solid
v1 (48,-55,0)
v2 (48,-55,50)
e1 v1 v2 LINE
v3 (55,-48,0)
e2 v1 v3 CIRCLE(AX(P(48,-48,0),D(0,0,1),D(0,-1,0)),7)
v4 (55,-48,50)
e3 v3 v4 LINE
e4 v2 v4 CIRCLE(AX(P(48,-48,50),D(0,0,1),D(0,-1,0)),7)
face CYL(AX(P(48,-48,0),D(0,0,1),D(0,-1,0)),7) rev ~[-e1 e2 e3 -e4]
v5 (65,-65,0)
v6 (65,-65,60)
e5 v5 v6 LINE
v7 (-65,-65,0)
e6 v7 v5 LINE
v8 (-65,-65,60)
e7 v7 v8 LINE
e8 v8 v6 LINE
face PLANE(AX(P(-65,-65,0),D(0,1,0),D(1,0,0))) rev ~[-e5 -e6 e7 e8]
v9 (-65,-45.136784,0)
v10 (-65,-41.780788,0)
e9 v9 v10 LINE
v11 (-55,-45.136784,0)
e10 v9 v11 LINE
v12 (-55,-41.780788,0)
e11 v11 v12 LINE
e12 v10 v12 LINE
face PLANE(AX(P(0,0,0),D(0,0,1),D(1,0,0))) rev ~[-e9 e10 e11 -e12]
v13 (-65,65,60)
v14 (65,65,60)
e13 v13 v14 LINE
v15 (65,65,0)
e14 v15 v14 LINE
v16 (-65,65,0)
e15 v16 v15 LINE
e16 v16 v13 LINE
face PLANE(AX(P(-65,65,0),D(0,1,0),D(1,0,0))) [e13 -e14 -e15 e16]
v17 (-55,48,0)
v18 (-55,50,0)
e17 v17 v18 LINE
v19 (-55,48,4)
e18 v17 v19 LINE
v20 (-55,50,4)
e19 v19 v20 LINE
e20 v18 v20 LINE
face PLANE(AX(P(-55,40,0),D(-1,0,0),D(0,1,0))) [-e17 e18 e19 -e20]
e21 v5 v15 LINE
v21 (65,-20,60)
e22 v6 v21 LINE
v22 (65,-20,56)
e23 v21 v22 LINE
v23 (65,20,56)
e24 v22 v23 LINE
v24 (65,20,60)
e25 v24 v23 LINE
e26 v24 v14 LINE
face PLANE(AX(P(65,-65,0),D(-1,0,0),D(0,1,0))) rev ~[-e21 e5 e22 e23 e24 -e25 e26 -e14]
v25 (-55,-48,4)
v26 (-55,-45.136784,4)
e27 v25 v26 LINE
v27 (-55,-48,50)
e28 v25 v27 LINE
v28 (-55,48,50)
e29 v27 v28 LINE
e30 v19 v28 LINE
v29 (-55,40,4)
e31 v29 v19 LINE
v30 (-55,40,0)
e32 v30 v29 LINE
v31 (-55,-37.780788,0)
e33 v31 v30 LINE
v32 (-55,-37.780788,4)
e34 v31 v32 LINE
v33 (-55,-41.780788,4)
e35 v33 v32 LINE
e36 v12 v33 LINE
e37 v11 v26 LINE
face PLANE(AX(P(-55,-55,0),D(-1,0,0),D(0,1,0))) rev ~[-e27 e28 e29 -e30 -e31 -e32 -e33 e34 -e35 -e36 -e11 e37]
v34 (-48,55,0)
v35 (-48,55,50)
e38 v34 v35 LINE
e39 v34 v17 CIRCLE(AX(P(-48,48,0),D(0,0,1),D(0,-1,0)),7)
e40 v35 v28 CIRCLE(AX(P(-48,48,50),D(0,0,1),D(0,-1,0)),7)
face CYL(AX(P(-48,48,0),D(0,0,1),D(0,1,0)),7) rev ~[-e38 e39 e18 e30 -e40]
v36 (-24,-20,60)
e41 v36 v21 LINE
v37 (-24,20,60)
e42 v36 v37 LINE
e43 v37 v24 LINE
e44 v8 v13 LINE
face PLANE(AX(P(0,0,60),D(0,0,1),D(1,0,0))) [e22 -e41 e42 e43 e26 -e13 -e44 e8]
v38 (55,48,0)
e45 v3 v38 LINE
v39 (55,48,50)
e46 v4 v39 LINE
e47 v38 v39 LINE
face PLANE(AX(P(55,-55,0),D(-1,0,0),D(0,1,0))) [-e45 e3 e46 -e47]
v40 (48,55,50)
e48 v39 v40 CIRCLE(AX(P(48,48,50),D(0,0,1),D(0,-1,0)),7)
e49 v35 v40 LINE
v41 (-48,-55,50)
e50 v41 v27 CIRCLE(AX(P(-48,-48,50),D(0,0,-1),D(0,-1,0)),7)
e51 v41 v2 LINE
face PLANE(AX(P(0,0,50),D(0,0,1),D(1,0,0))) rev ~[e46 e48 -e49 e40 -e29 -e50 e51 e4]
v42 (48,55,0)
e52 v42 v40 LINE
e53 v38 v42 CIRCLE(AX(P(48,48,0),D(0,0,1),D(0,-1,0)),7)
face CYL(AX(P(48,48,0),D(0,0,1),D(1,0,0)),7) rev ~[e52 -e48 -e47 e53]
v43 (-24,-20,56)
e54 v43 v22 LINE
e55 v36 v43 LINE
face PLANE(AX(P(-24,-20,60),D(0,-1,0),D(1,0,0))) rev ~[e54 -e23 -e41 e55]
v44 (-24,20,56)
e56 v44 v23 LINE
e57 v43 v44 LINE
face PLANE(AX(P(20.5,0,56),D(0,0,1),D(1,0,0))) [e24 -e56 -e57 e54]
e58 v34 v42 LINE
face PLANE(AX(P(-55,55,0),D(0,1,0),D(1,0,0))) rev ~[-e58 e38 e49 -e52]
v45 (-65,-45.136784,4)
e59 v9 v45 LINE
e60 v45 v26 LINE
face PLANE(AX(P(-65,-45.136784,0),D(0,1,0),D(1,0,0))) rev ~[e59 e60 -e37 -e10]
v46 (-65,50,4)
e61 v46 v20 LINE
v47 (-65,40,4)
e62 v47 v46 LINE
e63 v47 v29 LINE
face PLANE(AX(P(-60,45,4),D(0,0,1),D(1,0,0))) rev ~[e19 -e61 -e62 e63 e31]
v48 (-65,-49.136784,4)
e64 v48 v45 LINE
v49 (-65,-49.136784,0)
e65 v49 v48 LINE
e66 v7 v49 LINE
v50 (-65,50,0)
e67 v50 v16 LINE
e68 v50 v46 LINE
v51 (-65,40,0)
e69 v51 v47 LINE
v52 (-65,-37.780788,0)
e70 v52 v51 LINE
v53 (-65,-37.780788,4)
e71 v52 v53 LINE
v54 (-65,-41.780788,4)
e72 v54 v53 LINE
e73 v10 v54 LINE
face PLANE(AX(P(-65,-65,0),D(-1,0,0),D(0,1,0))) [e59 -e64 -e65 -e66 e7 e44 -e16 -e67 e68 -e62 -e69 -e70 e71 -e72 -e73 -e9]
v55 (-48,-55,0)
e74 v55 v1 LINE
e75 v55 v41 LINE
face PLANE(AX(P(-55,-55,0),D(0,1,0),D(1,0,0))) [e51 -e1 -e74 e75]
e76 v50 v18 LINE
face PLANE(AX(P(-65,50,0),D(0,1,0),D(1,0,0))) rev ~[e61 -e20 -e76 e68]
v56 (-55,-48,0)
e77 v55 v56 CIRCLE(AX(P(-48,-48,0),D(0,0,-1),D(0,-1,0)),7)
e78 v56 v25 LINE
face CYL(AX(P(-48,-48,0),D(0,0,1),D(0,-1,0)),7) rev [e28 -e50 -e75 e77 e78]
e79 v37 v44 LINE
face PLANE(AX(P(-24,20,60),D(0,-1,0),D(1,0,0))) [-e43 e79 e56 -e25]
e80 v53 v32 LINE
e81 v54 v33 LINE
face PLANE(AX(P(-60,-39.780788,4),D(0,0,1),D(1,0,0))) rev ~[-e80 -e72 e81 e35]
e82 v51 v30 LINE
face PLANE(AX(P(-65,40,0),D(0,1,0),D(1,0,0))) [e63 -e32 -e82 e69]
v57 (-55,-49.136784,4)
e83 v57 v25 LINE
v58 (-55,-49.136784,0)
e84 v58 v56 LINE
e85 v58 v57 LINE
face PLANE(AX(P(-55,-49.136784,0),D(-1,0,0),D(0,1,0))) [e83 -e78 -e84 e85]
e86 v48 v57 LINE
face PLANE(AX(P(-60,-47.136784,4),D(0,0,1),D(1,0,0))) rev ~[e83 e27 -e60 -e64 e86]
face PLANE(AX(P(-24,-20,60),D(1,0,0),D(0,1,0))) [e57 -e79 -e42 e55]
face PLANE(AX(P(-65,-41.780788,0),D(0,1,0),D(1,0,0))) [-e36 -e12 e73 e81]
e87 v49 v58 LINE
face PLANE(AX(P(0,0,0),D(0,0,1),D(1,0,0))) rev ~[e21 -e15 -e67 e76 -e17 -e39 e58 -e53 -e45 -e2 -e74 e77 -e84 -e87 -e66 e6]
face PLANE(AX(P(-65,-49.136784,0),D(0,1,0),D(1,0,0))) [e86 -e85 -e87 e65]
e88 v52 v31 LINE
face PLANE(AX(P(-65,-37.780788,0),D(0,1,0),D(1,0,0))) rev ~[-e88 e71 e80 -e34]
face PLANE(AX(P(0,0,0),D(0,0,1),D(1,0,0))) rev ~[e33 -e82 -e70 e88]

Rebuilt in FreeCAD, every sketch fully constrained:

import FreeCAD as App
import Part
import Sketcher

V = App.Vector


def edges_at(feature, points):
    """Names of the edges that pass closest to the given points."""
    edges = feature.Shape.Edges
    near = lambda p: min(range(len(edges)), key=lambda i: edges[i].distToShape(Part.Vertex(*p))[0])
    return sorted({f"Edge{near(p) + 1}" for p in points})

doc = App.newDocument("Part")
body = doc.addObject("PartDesign::Body", "Body")

sketch1 = body.newObject("Sketcher::SketchObject", "Sketch")
sketch1.AttachmentSupport = (doc.getObject("XY_Plane"), [""])
sketch1.MapMode = "FlatFace"
sketch1.addGeometry([
    Part.LineSegment(V(-65, 65, 0), V(-65, -65, 0)),
    Part.LineSegment(V(-65, -65, 0), V(65, -65, 0)),
    Part.LineSegment(V(65, -65, 0), V(65, 65, 0)),
    Part.LineSegment(V(65, 65, 0), V(-65, 65, 0)),
], False)
sketch1.addConstraint([
    Sketcher.Constraint("Coincident", 0, 2, 1, 1),
    Sketcher.Constraint("Coincident", 1, 2, 2, 1),
    Sketcher.Constraint("Coincident", 2, 2, 3, 1),
    Sketcher.Constraint("Coincident", 3, 2, 0, 1),
    Sketcher.Constraint("Vertical", 0),
    Sketcher.Constraint("Horizontal", 1),
    Sketcher.Constraint("Vertical", 2),
    Sketcher.Constraint("Horizontal", 3),
    Sketcher.Constraint("Symmetric", 0, 2, 2, 2, -1, 1),
    Sketcher.Constraint("Equal", 3, 0),
    Sketcher.Constraint("DistanceX", 1, 1, 1, 2, 130.0),
])
pad1 = body.newObject("PartDesign::Pad", "Pad")
pad1.Profile = sketch1
pad1.Length = 60

sketch2 = body.newObject("Sketcher::SketchObject", "Sketch001")
sketch2.AttachmentSupport = (doc.getObject("XY_Plane"), [""])
sketch2.MapMode = "FlatFace"
sketch2.addGeometry([
    Part.LineSegment(V(-55, 55, 0), V(-55, -55, 0)),
    Part.LineSegment(V(-55, -55, 0), V(55, -55, 0)),
    Part.LineSegment(V(55, -55, 0), V(55, 55, 0)),
    Part.LineSegment(V(55, 55, 0), V(-55, 55, 0)),
], False)
sketch2.addConstraint([
    Sketcher.Constraint("Coincident", 0, 2, 1, 1),
    Sketcher.Constraint("Coincident", 1, 2, 2, 1),
    Sketcher.Constraint("Coincident", 2, 2, 3, 1),
    Sketcher.Constraint("Coincident", 3, 2, 0, 1),
    Sketcher.Constraint("Vertical", 0),
    Sketcher.Constraint("Horizontal", 1),
    Sketcher.Constraint("Vertical", 2),
    Sketcher.Constraint("Horizontal", 3),
    Sketcher.Constraint("Symmetric", 0, 2, 2, 2, -1, 1),
    Sketcher.Constraint("Equal", 3, 0),
    Sketcher.Constraint("DistanceX", 1, 1, 1, 2, 110.0),
])
pocket1 = body.newObject("PartDesign::Pocket", "Pocket")
pocket1.Profile = sketch2
pocket1.Length = 50
pocket1.Reversed = True

sketch3 = body.newObject("Sketcher::SketchObject", "Sketch002")
sketch3.AttachmentSupport = (doc.getObject("XY_Plane"), [""])
sketch3.MapMode = "FlatFace"
sketch3.AttachmentOffset = App.Placement(V(0, 0, 60), App.Rotation())
sketch3.addGeometry([
    Part.LineSegment(V(-24, 20, 0), V(-24, -20, 0)),
    Part.LineSegment(V(-24, -20, 0), V(65, -20, 0)),
    Part.LineSegment(V(65, -20, 0), V(65, 20, 0)),
    Part.LineSegment(V(65, 20, 0), V(-24, 20, 0)),
], False)
sketch3.addConstraint([
    Sketcher.Constraint("Coincident", 0, 2, 1, 1),
    Sketcher.Constraint("Coincident", 1, 2, 2, 1),
    Sketcher.Constraint("Coincident", 2, 2, 3, 1),
    Sketcher.Constraint("Coincident", 3, 2, 0, 1),
    Sketcher.Constraint("Vertical", 0),
    Sketcher.Constraint("Horizontal", 1),
    Sketcher.Constraint("Vertical", 2),
    Sketcher.Constraint("Horizontal", 3),
    Sketcher.Constraint("DistanceX", 1, 1, 1, 2, 89.0),
    Sketcher.Constraint("DistanceY", 0, 2, 0, 1, 40.0),
    Sketcher.Constraint("DistanceX", 0, 2, -1, 1, 24.0),
    Sketcher.Constraint("DistanceY", 0, 2, -1, 1, 20.0),
])
pocket2 = body.newObject("PartDesign::Pocket", "Pocket001")
pocket2.Profile = sketch3
pocket2.Length = 4
doc.recompute()

fillet = body.newObject("PartDesign::Fillet", "Fillet")
fillet.Base = (pocket2, edges_at(pocket2, [
    (55, -55, 25),
    (55, 55, 25),
    (-55, 55, 25),
    (-55, -55, 25),
]))
fillet.Radius = 7

sketch4 = body.newObject("Sketcher::SketchObject", "Sketch003")
sketch4.AttachmentSupport = (doc.getObject("XY_Plane"), [""])
sketch4.MapMode = "FlatFace"
sketch4.addGeometry([
    Part.LineSegment(V(-65, -37.8, 0), V(-65, -41.8, 0)),
    Part.LineSegment(V(-65, -41.8, 0), V(-55, -41.8, 0)),
    Part.LineSegment(V(-55, -41.8, 0), V(-55, -37.8, 0)),
    Part.LineSegment(V(-55, -37.8, 0), V(-65, -37.8, 0)),
], False)
sketch4.addConstraint([
    Sketcher.Constraint("Coincident", 0, 2, 1, 1),
    Sketcher.Constraint("Coincident", 1, 2, 2, 1),
    Sketcher.Constraint("Coincident", 2, 2, 3, 1),
    Sketcher.Constraint("Coincident", 3, 2, 0, 1),
    Sketcher.Constraint("Vertical", 0),
    Sketcher.Constraint("Horizontal", 1),
    Sketcher.Constraint("Vertical", 2),
    Sketcher.Constraint("Horizontal", 3),
    Sketcher.Constraint("DistanceX", 1, 1, 1, 2, 10.0),
    Sketcher.Constraint("DistanceY", 0, 2, 0, 1, 4.0),
    Sketcher.Constraint("DistanceX", 0, 2, -1, 1, 65.0),
    Sketcher.Constraint("DistanceY", 0, 2, -1, 1, 41.780788),
])
pocket3 = body.newObject("PartDesign::Pocket", "Pocket002")
pocket3.Profile = sketch4
pocket3.Length = 4
pocket3.Reversed = True

sketch5 = body.newObject("Sketcher::SketchObject", "Sketch004")
sketch5.AttachmentSupport = (doc.getObject("XY_Plane"), [""])
sketch5.MapMode = "FlatFace"
sketch5.addGeometry([
    Part.LineSegment(V(-65, -45.1, 0), V(-65, -49.1, 0)),
    Part.LineSegment(V(-65, -49.1, 0), V(-55, -49.1, 0)),
    Part.LineSegment(V(-55, -49.1, 0), V(-55, -45.1, 0)),
    Part.LineSegment(V(-55, -45.1, 0), V(-65, -45.1, 0)),
], False)
sketch5.addConstraint([
    Sketcher.Constraint("Coincident", 0, 2, 1, 1),
    Sketcher.Constraint("Coincident", 1, 2, 2, 1),
    Sketcher.Constraint("Coincident", 2, 2, 3, 1),
    Sketcher.Constraint("Coincident", 3, 2, 0, 1),
    Sketcher.Constraint("Vertical", 0),
    Sketcher.Constraint("Horizontal", 1),
    Sketcher.Constraint("Vertical", 2),
    Sketcher.Constraint("Horizontal", 3),
    Sketcher.Constraint("DistanceX", 1, 1, 1, 2, 10.0),
    Sketcher.Constraint("DistanceY", 0, 2, 0, 1, 4.0),
    Sketcher.Constraint("DistanceX", 0, 2, -1, 1, 65.0),
    Sketcher.Constraint("DistanceY", 0, 2, -1, 1, 49.136784),
])
pocket4 = body.newObject("PartDesign::Pocket", "Pocket003")
pocket4.Profile = sketch5
pocket4.Length = 4
pocket4.Reversed = True

sketch6 = body.newObject("Sketcher::SketchObject", "Sketch005")
sketch6.AttachmentSupport = (doc.getObject("XY_Plane"), [""])
sketch6.MapMode = "FlatFace"
sketch6.addGeometry([
    Part.LineSegment(V(-65, 50, 0), V(-65, 40, 0)),
    Part.LineSegment(V(-65, 40, 0), V(-55, 40, 0)),
    Part.LineSegment(V(-55, 40, 0), V(-55, 50, 0)),
    Part.LineSegment(V(-55, 50, 0), V(-65, 50, 0)),
], False)
sketch6.addConstraint([
    Sketcher.Constraint("Coincident", 0, 2, 1, 1),
    Sketcher.Constraint("Coincident", 1, 2, 2, 1),
    Sketcher.Constraint("Coincident", 2, 2, 3, 1),
    Sketcher.Constraint("Coincident", 3, 2, 0, 1),
    Sketcher.Constraint("Vertical", 0),
    Sketcher.Constraint("Horizontal", 1),
    Sketcher.Constraint("Vertical", 2),
    Sketcher.Constraint("Horizontal", 3),
    Sketcher.Constraint("Equal", 3, 0),
    Sketcher.Constraint("DistanceX", 1, 1, 1, 2, 10.0),
    Sketcher.Constraint("DistanceX", 0, 2, -1, 1, 65.0),
    Sketcher.Constraint("DistanceY", -1, 1, 0, 2, 40.0),
])
pocket5 = body.newObject("PartDesign::Pocket", "Pocket004")
pocket5.Profile = sketch6
pocket5.Length = 4
pocket5.Reversed = True

doc.recompute()
